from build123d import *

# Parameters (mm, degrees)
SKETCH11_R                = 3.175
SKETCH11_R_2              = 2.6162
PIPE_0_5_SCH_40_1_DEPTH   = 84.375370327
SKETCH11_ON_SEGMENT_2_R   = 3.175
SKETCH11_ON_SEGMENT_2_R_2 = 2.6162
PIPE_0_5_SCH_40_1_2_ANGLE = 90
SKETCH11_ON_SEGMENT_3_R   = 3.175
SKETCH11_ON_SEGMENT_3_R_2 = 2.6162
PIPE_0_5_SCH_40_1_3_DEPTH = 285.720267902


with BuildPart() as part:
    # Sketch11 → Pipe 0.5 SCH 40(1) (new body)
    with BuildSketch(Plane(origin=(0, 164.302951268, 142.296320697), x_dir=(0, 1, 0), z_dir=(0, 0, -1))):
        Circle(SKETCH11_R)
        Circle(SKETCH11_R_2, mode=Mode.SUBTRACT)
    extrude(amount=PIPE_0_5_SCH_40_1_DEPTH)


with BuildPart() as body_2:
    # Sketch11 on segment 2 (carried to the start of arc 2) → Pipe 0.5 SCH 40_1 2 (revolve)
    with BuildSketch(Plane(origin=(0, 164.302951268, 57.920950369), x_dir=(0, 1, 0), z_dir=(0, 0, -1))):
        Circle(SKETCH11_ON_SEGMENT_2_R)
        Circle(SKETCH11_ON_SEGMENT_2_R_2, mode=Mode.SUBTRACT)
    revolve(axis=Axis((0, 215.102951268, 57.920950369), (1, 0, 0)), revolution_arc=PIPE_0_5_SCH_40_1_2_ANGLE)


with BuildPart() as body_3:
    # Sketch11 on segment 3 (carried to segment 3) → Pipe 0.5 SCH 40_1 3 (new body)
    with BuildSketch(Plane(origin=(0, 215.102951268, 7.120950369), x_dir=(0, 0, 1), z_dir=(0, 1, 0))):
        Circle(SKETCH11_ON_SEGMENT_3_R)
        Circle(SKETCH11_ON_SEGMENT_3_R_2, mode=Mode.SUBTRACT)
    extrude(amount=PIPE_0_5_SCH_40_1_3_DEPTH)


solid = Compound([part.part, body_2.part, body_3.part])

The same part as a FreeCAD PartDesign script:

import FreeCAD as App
import Part
import Sketcher
Q = App.Units.Quantity

doc = App.newDocument("Part")
body = doc.addObject("PartDesign::Body", "Body")

sketch1 = body.newObject("Sketcher::SketchObject", "Sketch")
sketch1.AttachmentSupport = (doc.getObject("XY_Plane"), [""])
sketch1.MapMode = "FlatFace"
sketch1.AttachmentOffset = App.Placement(App.Vector(0, 0, 142.296321), App.Rotation())
sketch1.addGeometry([
    Part.Circle(App.Vector(0, 164.3, 0), App.Vector(0, 0, 1), 3.2),
    Part.Circle(App.Vector(0, 164.3, 0), App.Vector(0, 0, 1), 2.6),
], False)
sketch1.addConstraint([
    Sketcher.Constraint("Coincident", 1, 3, 0, 3),
    Sketcher.Constraint("PointOnObject", 0, 3, -2),
    Sketcher.Constraint("Diameter", 0, Q("0.25 in")),
    Sketcher.Constraint("Diameter", 1, Q("0.206 in")),
    Sketcher.Constraint("DistanceY", -1, 1, 0, 3, Q("164.302951 mm")),
])
pad1 = body.newObject("PartDesign::Pad", "Pad")
pad1.Profile = sketch1
pad1.Length = 84.37537
pad1.Reversed = True
body2 = doc.addObject("PartDesign::Body", "Body001")

sketch2 = body2.newObject("Sketcher::SketchObject", "Sketch001")
sketch2.AttachmentSupport = (doc.getObject("XY_Plane001"), [""])
sketch2.MapMode = "FlatFace"
sketch2.AttachmentOffset = App.Placement(App.Vector(0, 0, 57.92095), App.Rotation())
sketch2.addGeometry([
    Part.Circle(App.Vector(0, 164.3, 0), App.Vector(0, 0, 1), 3.2),
    Part.Circle(App.Vector(0, 164.3, 0), App.Vector(0, 0, 1), 2.6),
], False)
sketch2.addGeometry(Part.LineSegment(App.Vector(0, 215.1, 0), App.Vector(10, 215.1, 0)), True)
sketch2.addConstraint([
    Sketcher.Constraint("Horizontal", 2),
    Sketcher.Constraint("Coincident", 1, 3, 0, 3),
    Sketcher.Constraint("PointOnObject", 0, 3, -2),
    Sketcher.Constraint("PointOnObject", 2, 1, -2),
    Sketcher.Constraint("Diameter", 0, Q("0.25 in")),
    Sketcher.Constraint("Diameter", 1, Q("0.206 in")),
    Sketcher.Constraint("DistanceY", 0, 3, 2, 1, Q("2 in")),
    Sketcher.Constraint("DistanceX", 2, 1, 2, 2, Q("10 mm")),
    Sketcher.Constraint("DistanceY", -1, 1, 0, 3, Q("164.302951 mm")),
])
revolution = body2.newObject("PartDesign::Revolution", "Revolution")
revolution.Profile = sketch2
revolution.ReferenceAxis = (sketch2, ["Axis0"])
revolution.Angle = 90
body3 = doc.addObject("PartDesign::Body", "Body002")

sketch3 = body3.newObject("Sketcher::SketchObject", "Sketch002")
sketch3.AttachmentSupport = (doc.getObject("XZ_Plane002"), [""])
sketch3.MapMode = "FlatFace"
sketch3.AttachmentOffset = App.Placement(App.Vector(0, 0, -215.102951), App.Rotation())
sketch3.addGeometry([
    Part.Circle(App.Vector(0, 7.1, 0), App.Vector(0, 0, 1), 3.2),
    Part.Circle(App.Vector(0, 7.1, 0), App.Vector(0, 0, 1), 2.6),
], False)
sketch3.addConstraint([
    Sketcher.Constraint("Coincident", 1, 3, 0, 3),
    Sketcher.Constraint("PointOnObject", 0, 3, -2),
    Sketcher.Constraint("Diameter", 0, Q("0.25 in")),
    Sketcher.Constraint("Diameter", 1, Q("0.206 in")),
    Sketcher.Constraint("DistanceY", -1, 1, 0, 3, Q("7.12095 mm")),
])
pad2 = body3.newObject("PartDesign::Pad", "Pad001")
pad2.Profile = sketch3
pad2.Length = 285.720268
pad2.Reversed = True

doc.recompute()
